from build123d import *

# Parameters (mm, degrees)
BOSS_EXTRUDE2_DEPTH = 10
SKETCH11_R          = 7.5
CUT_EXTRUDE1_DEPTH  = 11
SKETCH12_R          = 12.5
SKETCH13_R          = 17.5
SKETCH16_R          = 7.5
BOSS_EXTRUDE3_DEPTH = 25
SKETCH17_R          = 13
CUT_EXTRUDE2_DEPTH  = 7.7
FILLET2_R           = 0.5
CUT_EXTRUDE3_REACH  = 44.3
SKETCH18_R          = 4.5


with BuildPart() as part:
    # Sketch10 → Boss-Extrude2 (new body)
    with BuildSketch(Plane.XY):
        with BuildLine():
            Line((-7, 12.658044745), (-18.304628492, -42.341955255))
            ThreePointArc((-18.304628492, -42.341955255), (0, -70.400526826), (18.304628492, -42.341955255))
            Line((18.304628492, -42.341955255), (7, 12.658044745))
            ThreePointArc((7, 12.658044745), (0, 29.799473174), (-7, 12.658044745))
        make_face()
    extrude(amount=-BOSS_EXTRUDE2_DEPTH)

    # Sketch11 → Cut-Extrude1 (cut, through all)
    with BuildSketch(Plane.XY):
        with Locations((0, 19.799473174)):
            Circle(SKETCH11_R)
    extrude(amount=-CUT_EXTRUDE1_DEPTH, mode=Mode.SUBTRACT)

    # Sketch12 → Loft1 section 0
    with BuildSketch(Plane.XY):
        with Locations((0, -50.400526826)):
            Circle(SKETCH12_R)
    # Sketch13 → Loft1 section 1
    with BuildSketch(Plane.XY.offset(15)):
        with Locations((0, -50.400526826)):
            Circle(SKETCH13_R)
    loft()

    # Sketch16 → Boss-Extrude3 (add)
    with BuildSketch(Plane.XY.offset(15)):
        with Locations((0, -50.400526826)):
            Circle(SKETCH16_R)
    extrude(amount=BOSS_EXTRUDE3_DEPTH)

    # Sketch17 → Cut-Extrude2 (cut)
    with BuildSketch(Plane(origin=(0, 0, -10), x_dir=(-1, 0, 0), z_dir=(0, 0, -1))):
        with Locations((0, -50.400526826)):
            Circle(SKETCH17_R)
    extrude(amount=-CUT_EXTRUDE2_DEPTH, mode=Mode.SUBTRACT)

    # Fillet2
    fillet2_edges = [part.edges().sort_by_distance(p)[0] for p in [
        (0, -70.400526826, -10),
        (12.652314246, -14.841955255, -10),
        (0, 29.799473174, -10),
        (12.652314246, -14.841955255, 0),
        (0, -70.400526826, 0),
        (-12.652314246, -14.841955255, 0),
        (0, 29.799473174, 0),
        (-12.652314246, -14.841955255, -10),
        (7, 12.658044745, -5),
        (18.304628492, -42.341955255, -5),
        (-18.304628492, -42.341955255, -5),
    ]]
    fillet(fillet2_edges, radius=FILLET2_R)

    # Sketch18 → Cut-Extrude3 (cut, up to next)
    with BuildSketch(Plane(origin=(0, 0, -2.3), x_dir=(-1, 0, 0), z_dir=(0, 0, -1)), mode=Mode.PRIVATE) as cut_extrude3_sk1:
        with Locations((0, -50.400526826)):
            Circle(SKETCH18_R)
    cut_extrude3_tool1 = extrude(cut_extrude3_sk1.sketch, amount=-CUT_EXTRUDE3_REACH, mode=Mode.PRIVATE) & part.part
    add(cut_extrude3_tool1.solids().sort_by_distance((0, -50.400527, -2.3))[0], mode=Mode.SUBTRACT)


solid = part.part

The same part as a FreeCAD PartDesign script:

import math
import FreeCAD as App
import Part
import Sketcher

V = App.Vector
Q = App.Units.Quantity


def edges_at(feature, points):
    """Names of the edges that pass closest to the given points."""
    edges = feature.Shape.Edges
    near = lambda p: min(range(len(edges)), key=lambda i: edges[i].distToShape(Part.Vertex(*p))[0])
    return sorted({f"Edge{near(p) + 1}" for p in points})

doc = App.newDocument("Part")
params = doc.addObject("Spreadsheet::Sheet", "Params")
for row, (alias, value) in enumerate([
    ("sketch1_radius", "20 mm"),
    ("sketch1_radius2", "10 mm"),
    ("pad1_length", "10 mm"),
    ("sketch2_diameter", "15 mm"),
    ("sketch3_diameter", "25 mm"),
    ("sketch4_diameter", "35 mm"),
    ("sketch5_diameter", "15 mm"),
    ("pad2_length", "25 mm"),
    ("sketch6_diameter", "26 mm"),
    ("pocket2_length", "7.7 mm"),
    ("fillet_radius", "0.5 mm"),
    ("sketch7_diameter", "9 mm"),
], start=1):
    params.set(f"A{row}", alias)
    params.set(f"B{row}", "=" + value)
    params.setAlias(f"B{row}", alias)

body = doc.addObject("PartDesign::Body", "Body")

sketch1 = body.newObject("Sketcher::SketchObject", "Sketch")
sketch1.AttachmentSupport = (doc.getObject("XY_Plane"), [""])
sketch1.MapMode = "FlatFace"
sketch1.addGeometry([
    Part.LineSegment(V(-7, 13, 0), V(-18, -42, 0)),
    Part.ArcOfCircle(Part.Circle(V(0, -50, 0), V(0, 0, 1), 20), math.radians(156), math.radians(384)),
    Part.LineSegment(V(18, -42, 0), V(7, 13, 0)),
    Part.ArcOfCircle(Part.Circle(V(0, 20, 0), V(0, 0, 1), 10), math.radians(-46), math.radians(226)),
], False)
sketch1.addConstraint([
    Sketcher.Constraint("Coincident", 0, 2, 1, 1),
    Sketcher.Constraint("Coincident", 1, 2, 2, 1),
    Sketcher.Constraint("Coincident", 2, 2, 3, 1),
    Sketcher.Constraint("Coincident", 3, 2, 0, 1),
    Sketcher.Constraint("Symmetric", 0, 2, 1, 2, -2),
    Sketcher.Constraint("Symmetric", 2, 2, 3, 2, -2),
    Sketcher.Constraint("Radius", 1, Q("20 mm")),
    Sketcher.Constraint("Radius", 3, Q("10 mm")),
    Sketcher.Constraint("DistanceX", -1, 1, 2, 2, Q("7 mm")),
    Sketcher.Constraint("DistanceY", 1, 2, 2, 2, Q("55 mm")),
    Sketcher.Constraint("DistanceY", 1, 3, 3, 3, Q("70.2 mm")),
    Sketcher.Constraint("DistanceY", 1, 3, -1, 1, Q("50.400527 mm")),
])
sketch1.setExpression("Constraints[6]", "Params.sketch1_radius")
sketch1.setExpression("Constraints[7]", "Params.sketch1_radius2")
pad1 = body.newObject("PartDesign::Pad", "Pad")
pad1.Profile = sketch1
pad1.setExpression("Length", "Params.pad1_length")
pad1.Reversed = True

sketch2 = body.newObject("Sketcher::SketchObject", "Sketch001")
sketch2.AttachmentSupport = (doc.getObject("XY_Plane"), [""])
sketch2.MapMode = "FlatFace"
sketch2.addGeometry(Part.Circle(V(0, 20, 0), V(0, 0, 1), 8), False)
sketch2.addConstraint([
    Sketcher.Constraint("PointOnObject", 0, 3, -2),
    Sketcher.Constraint("Diameter", 0, Q("15 mm")),
    Sketcher.Constraint("DistanceY", -1, 1, 0, 3, Q("19.799473 mm")),
])
sketch2.setExpression("Constraints[1]", "Params.sketch2_diameter")
pocket1 = body.newObject("PartDesign::Pocket", "Pocket")
pocket1.Profile = sketch2
pocket1.Type = "ThroughAll"

sketch3 = body.newObject("Sketcher::SketchObject", "Sketch002")
sketch3.AttachmentSupport = (doc.getObject("XY_Plane"), [""])
sketch3.MapMode = "FlatFace"
sketch3.addGeometry(Part.Circle(V(0, -50, 0), V(0, 0, 1), 12), False)
sketch3.addConstraint([
    Sketcher.Constraint("PointOnObject", 0, 3, -2),
    Sketcher.Constraint("Diameter", 0, Q("25 mm")),
    Sketcher.Constraint("DistanceY", 0, 3, -1, 1, Q("50.400527 mm")),
])
sketch3.setExpression("Constraints[1]", "Params.sketch3_diameter")

sketch4 = body.newObject("Sketcher::SketchObject", "Sketch003")
sketch4.AttachmentSupport = (doc.getObject("XY_Plane"), [""])
sketch4.MapMode = "FlatFace"
sketch4.AttachmentOffset = App.Placement(V(0, 0, 15), App.Rotation())
sketch4.addGeometry(Part.Circle(V(0, -50, 0), V(0, 0, 1), 18), False)
sketch4.addConstraint([
    Sketcher.Constraint("PointOnObject", 0, 3, -2),
    Sketcher.Constraint("Diameter", 0, Q("35 mm")),
    Sketcher.Constraint("DistanceY", 0, 3, -1, 1, Q("50.400527 mm")),
])
sketch4.setExpression("Constraints[1]", "Params.sketch4_diameter")

additiveloft = body.newObject("PartDesign::AdditiveLoft", "AdditiveLoft")
additiveloft.Profile = sketch3
additiveloft.Sections = [sketch4]

sketch5 = body.newObject("Sketcher::SketchObject", "Sketch004")
sketch5.AttachmentSupport = (doc.getObject("XY_Plane"), [""])
sketch5.MapMode = "FlatFace"
sketch5.AttachmentOffset = App.Placement(V(0, 0, 15), App.Rotation())
sketch5.addGeometry(Part.Circle(V(0, -50, 0), V(0, 0, 1), 8), False)
sketch5.addConstraint([
    Sketcher.Constraint("PointOnObject", 0, 3, -2),
    Sketcher.Constraint("Diameter", 0, Q("15 mm")),
    Sketcher.Constraint("DistanceY", 0, 3, -1, 1, Q("50.400527 mm")),
])
sketch5.setExpression("Constraints[1]", "Params.sketch5_diameter")
pad2 = body.newObject("PartDesign::Pad", "Pad001")
pad2.Profile = sketch5
pad2.setExpression("Length", "Params.pad2_length")

sketch6 = body.newObject("Sketcher::SketchObject", "Sketch005")
sketch6.AttachmentSupport = (doc.getObject("XY_Plane"), [""])
sketch6.MapMode = "FlatFace"
sketch6.AttachmentOffset = App.Placement(V(0, 0, -10), App.Rotation())
sketch6.addGeometry(Part.Circle(V(0, -50, 0), V(0, 0, 1), 13), False)
sketch6.addConstraint([
    Sketcher.Constraint("PointOnObject", 0, 3, -2),
    Sketcher.Constraint("Diameter", 0, Q("26 mm")),
    Sketcher.Constraint("DistanceY", 0, 3, -1, 1, Q("50.400527 mm")),
])
sketch6.setExpression("Constraints[1]", "Params.sketch6_diameter")
pocket2 = body.newObject("PartDesign::Pocket", "Pocket001")
pocket2.Profile = sketch6
pocket2.setExpression("Length", "Params.pocket2_length")
pocket2.Reversed = True
doc.recompute()

fillet = body.newObject("PartDesign::Fillet", "Fillet")
fillet.Base = (pocket2, edges_at(pocket2, [
    (0, -70.401, -10),
    (12.652, -14.842, -10),
    (0, 29.799, -10),
    (12.652, -14.842, 0),
    (0, -70.401, 0),
    (-12.652, -14.842, 0),
    (0, 29.799, 0),
    (-12.652, -14.842, -10),
    (7, 12.658, -5),
    (18.305, -42.342, -5),
    (-18.305, -42.342, -5),
]))
fillet.setExpression("Radius", "Params.fillet_radius")

sketch7 = body.newObject("Sketcher::SketchObject", "Sketch006")
sketch7.AttachmentSupport = (doc.getObject("XY_Plane"), [""])
sketch7.MapMode = "FlatFace"
sketch7.AttachmentOffset = App.Placement(V(0, 0, -2.3), App.Rotation())
sketch7.addGeometry(Part.Circle(V(0, -50.4, 0), V(0, 0, 1), 4.5), False)
sketch7.addConstraint([
    Sketcher.Constraint("PointOnObject", 0, 3, -2),
    Sketcher.Constraint("Diameter", 0, Q("9 mm")),
    Sketcher.Constraint("DistanceY", 0, 3, -1, 1, Q("50.400527 mm")),
])
sketch7.setExpression("Constraints[1]", "Params.sketch7_diameter")
pocket3 = body.newObject("PartDesign::Pocket", "Pocket002")
pocket3.Profile = sketch7
pocket3.Type = "UpToFirst"
pocket3.Reversed = True

doc.recompute()
